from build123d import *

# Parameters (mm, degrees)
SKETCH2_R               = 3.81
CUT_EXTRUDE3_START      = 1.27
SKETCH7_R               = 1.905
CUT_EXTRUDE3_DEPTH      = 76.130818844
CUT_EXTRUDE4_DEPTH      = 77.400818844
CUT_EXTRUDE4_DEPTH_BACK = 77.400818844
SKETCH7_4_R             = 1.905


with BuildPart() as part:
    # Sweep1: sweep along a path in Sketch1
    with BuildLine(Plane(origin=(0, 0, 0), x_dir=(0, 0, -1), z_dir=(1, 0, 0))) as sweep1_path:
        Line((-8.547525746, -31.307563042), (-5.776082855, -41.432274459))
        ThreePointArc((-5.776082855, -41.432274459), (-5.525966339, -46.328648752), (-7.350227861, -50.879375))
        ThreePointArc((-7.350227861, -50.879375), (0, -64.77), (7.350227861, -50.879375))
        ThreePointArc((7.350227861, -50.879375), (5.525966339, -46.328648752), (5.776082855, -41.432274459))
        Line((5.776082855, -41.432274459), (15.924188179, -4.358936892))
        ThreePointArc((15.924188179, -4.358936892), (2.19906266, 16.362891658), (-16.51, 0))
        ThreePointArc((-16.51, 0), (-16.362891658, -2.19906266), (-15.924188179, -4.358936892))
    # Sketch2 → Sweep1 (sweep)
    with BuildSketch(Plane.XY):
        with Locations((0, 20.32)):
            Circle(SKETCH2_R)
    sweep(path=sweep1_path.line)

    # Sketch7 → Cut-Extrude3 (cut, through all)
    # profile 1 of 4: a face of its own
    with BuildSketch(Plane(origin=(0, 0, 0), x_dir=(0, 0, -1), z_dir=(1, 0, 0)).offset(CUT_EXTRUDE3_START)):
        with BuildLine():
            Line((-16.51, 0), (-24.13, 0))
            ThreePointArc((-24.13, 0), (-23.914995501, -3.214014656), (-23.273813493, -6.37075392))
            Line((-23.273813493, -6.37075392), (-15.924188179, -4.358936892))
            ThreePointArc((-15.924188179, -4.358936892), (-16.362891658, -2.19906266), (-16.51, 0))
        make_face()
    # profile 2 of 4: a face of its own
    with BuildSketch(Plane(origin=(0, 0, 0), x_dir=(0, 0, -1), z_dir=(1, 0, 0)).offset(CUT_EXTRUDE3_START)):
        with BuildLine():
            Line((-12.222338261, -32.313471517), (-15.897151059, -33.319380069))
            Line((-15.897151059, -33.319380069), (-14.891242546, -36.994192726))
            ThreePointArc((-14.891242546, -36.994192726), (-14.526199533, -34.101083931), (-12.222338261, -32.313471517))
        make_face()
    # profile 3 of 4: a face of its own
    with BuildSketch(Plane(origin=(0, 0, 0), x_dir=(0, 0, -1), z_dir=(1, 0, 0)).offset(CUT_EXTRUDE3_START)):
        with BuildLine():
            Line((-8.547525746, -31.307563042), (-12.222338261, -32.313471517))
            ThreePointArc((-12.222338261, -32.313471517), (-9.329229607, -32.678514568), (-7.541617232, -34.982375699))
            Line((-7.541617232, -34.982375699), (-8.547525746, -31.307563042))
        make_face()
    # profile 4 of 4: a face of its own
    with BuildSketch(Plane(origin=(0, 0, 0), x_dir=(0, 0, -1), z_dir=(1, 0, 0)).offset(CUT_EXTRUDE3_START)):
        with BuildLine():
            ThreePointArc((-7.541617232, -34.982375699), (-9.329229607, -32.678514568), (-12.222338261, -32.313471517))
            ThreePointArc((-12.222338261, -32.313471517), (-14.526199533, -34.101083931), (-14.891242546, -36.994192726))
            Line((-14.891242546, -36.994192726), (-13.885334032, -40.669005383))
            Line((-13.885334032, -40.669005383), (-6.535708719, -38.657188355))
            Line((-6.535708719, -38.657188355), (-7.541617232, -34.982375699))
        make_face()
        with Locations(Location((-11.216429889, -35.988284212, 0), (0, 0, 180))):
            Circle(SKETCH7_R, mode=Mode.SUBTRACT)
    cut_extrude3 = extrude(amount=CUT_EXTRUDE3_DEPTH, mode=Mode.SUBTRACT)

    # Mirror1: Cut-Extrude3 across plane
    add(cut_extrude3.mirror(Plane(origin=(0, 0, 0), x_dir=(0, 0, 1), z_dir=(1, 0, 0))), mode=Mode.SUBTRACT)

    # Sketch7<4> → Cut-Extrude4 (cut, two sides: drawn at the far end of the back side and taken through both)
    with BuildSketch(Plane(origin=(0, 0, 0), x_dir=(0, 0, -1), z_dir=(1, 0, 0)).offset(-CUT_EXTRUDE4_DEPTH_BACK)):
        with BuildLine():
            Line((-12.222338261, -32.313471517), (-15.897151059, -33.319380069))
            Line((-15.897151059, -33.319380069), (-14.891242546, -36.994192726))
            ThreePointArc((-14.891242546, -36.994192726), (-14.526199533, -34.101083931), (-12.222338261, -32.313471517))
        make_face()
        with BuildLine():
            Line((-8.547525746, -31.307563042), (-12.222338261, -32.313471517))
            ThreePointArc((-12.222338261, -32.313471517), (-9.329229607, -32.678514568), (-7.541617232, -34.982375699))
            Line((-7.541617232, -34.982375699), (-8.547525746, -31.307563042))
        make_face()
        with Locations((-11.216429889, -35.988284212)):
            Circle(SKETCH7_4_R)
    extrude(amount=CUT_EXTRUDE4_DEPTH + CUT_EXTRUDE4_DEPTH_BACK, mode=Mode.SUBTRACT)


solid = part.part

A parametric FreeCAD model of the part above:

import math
import FreeCAD as App
import Part
import Sketcher
from FreeCAD import Vector
Q = App.Units.Quantity

doc = App.newDocument("Part")
body = doc.addObject("PartDesign::Body", "Body")

# Sketch on XY plane
sketch1 = body.newObject("Sketcher::SketchObject", "Sketch")
sketch1.AttachmentSupport = (doc.getObject("XY_Plane"), [""])
sketch1.MapMode = "FlatFace"
sketch1.addGeometry(Part.Circle(Vector(0, 20.3, 0), Vector(0, 0, 1), 3.8), False)
sketch1.addConstraint(Sketcher.Constraint("PointOnObject", 0, 3, -2))
sketch1.addConstraint(Sketcher.Constraint("Diameter", 0, Q("0.3 in")))
sketch1.addConstraint(Sketcher.Constraint("DistanceY", -1, 1, 0, 3, Q("0.8 in")))

# Sketch on YZ plane
sketch2 = body.newObject("Sketcher::SketchObject", "Sketch001")
sketch2.AttachmentSupport = (doc.getObject("YZ_Plane"), [""])
sketch2.MapMode = "FlatFace"
sketch2.addGeometry(Part.LineSegment(Vector(-31.3, 8.5, 0), Vector(-41.4, 5.8, 0)), False)
sketch2.addGeometry(Part.ArcOfCircle(Part.Circle(Vector(-44.5, 16.8, 0), Vector(0, 0, 1), 11.4), math.radians(-124), math.radians(-75)), False)
sketch2.addGeometry(Part.ArcOfCircle(Part.Circle(Vector(-55.9, 0, 0), Vector(0, 0, 1), 8.9), math.radians(56), math.radians(304)), False)
sketch2.addGeometry(Part.ArcOfCircle(Part.Circle(Vector(-44.5, -16.8, 0), Vector(0, 0, 1), 11.4), math.radians(75), math.radians(124)), False)
sketch2.addGeometry(Part.LineSegment(Vector(-41.4, -5.8, 0), Vector(-4.4, -15.9, 0)), False)
sketch2.addGeometry(Part.ArcOfCircle(Part.Circle(Vector(0, 0, 0), Vector(0, 0, 1), 16.5), math.radians(-105), math.radians(90)), False)
sketch2.addGeometry(Part.ArcOfCircle(Part.Circle(Vector(0, 0, 0), Vector(0, 0, 1), 16.5), math.radians(90), math.radians(105.31)), False)
sketch2.addConstraint(Sketcher.Constraint("Tangent", 0, 2, 1, 2))
sketch2.addConstraint(Sketcher.Constraint("Tangent", 1, 1, 2, 1))
sketch2.addConstraint(Sketcher.Constraint("Tangent", 2, 2, 3, 2))
sketch2.addConstraint(Sketcher.Constraint("Tangent", 3, 1, 4, 1))
sketch2.addConstraint(Sketcher.Constraint("Tangent", 4, 2, 5, 1))
sketch2.addConstraint(Sketcher.Constraint("Tangent", 5, 2, 6, 1))
sketch2.addConstraint(Sketcher.Constraint("Coincident", 5, 3, -1, 1))
sketch2.addConstraint(Sketcher.Constraint("Equal", 1, 3))
sketch2.addConstraint(Sketcher.Constraint("Equal", 5, 6))
sketch2.addConstraint(Sketcher.Constraint("Symmetric", 1, 3, 3, 3, -1))
sketch2.addConstraint(Sketcher.Constraint("PointOnObject", 5, 2, -2))
sketch2.addConstraint(Sketcher.Constraint("Vertical", 0, 2, 3, 1))
sketch2.addConstraint(Sketcher.Constraint("Vertical", 4, 2, 6, 2))
sketch2.addConstraint(Sketcher.Constraint("Radius", 1, Q("0.45 in")))
sketch2.addConstraint(Sketcher.Constraint("Radius", 2, Q("0.35 in")))
sketch2.addConstraint(Sketcher.Constraint("Radius", 5, Q("0.65 in")))
sketch2.addConstraint(Sketcher.Constraint("DistanceX", 2, 3, -1, 1, Q("2.2 in")))
sketch2.addConstraint(Sketcher.Constraint("DistanceX", 1, 3, -1, 1, Q("1.75 in")))
sketch2.addConstraint(Sketcher.Constraint("DistanceX", 0, 2, 0, 1, Q("10.124711 mm")))
doc.recompute()

additivepipe = body.newObject("PartDesign::AdditivePipe", "AdditivePipe")
additivepipe.Profile = sketch1
additivepipe.Spine = (sketch2, ["Edge1", "Edge2", "Edge3", "Edge4", "Edge5", "Edge6", "Edge7"])

# Sketch on YZ plane
sketch3 = body.newObject("Sketcher::SketchObject", "Sketch002")
sketch3.AttachmentSupport = (doc.getObject("YZ_Plane"), [""])
sketch3.MapMode = "FlatFace"
sketch3.AttachmentOffset = App.Placement(Vector(0, 0, 0.05 * 25.4), App.Rotation())
sketch3.addGeometry(Part.LineSegment(Vector(0, 16.5, 0), Vector(0, 24.1, 0)), False)
sketch3.addGeometry(Part.ArcOfCircle(Part.Circle(Vector(0, 0, 0), Vector(0, 0, 1), 24.1), math.radians(90), math.radians(105.31)), False)
sketch3.addGeometry(Part.LineSegment(Vector(-6.4, 23.3, 0), Vector(-4.4, 15.9, 0)), False)
sketch3.addGeometry(Part.ArcOfCircle(Part.Circle(Vector(0, 0, 0), Vector(0, 0, 1), 16.5), math.radians(90), math.radians(105.31)), False)
sketch3.addGeometry(Part.LineSegment(Vector(-32.3, 12.2, 0), Vector(-33.3, 15.9, 0)), False)
sketch3.addGeometry(Part.LineSegment(Vector(-33.3, 15.9, 0), Vector(-37, 14.9, 0)), False)
sketch3.addGeometry(Part.LineSegment(Vector(-37, 14.9, 0), Vector(-40.7, 13.9, 0)), False)
sketch3.addGeometry(Part.LineSegment(Vector(-40.7, 13.9, 0), Vector(-38.7, 6.5, 0)), False)
sketch3.addGeometry(Part.LineSegment(Vector(-38.7, 6.5, 0), Vector(-35, 7.5, 0)), False)
sketch3.addGeometry(Part.LineSegment(Vector(-35, 7.5, 0), Vector(-31.3, 8.5, 0)), False)
sketch3.addGeometry(Part.LineSegment(Vector(-31.3, 8.5, 0), Vector(-32.3, 12.2, 0)), False)
sketch3.addGeometry(Part.Circle(Vector(-36, 11.2, 0), Vector(0, 0, 1), 1.9), False)
sketch3.addConstraint(Sketcher.Constraint("Coincident", 0, 2, 1, 1))
sketch3.addConstraint(Sketcher.Constraint("Coincident", 1, 2, 2, 1))
sketch3.addConstraint(Sketcher.Constraint("Coincident", 2, 2, 3, 2))
sketch3.addConstraint(Sketcher.Constraint("Coincident", 3, 1, 0, 1))
sketch3.addConstraint(Sketcher.Constraint("Coincident", 4, 2, 5, 1))
sketch3.addConstraint(Sketcher.Constraint("Coincident", 5, 2, 6, 1))
sketch3.addConstraint(Sketcher.Constraint("Coincident", 6, 2, 7, 1))
sketch3.addConstraint(Sketcher.Constraint("Coincident", 7, 2, 8, 1))
sketch3.addConstraint(Sketcher.Constraint("Coincident", 8, 2, 9, 1))
sketch3.addConstraint(Sketcher.Constraint("Coincident", 9, 2, 10, 1))
sketch3.addConstraint(Sketcher.Constraint("Coincident", 10, 2, 4, 1))
sketch3.addConstraint(Sketcher.Constraint("Vertical", 0))
sketch3.addConstraint(Sketcher.Constraint("Coincident", 1, 3, -1, 1))
sketch3.addConstraint(Sketcher.Constraint("Coincident", 3, 3, -1, 1))
sketch3.addConstraint(Sketcher.Constraint("PointOnObject", 0, 2, -2))
sketch3.addConstraint(Sketcher.Constraint("Parallel", 2, 4))
sketch3.addConstraint(Sketcher.Constraint("Perpendicular", 4, 5))
sketch3.addConstraint(Sketcher.Constraint("Parallel", 5, 6))
sketch3.addConstraint(Sketcher.Constraint("Perpendicular", 6, 7))
sketch3.addConstraint(Sketcher.Constraint("Perpendicular", 7, 8))
sketch3.addConstraint(Sketcher.Constraint("Parallel", 8, 9))
sketch3.addConstraint(Sketcher.Constraint("Perpendicular", 9, 10))
sketch3.addConstraint(Sketcher.Constraint("Equal", 4, 5))
sketch3.addConstraint(Sketcher.Constraint("Equal", 5, 6))
sketch3.addConstraint(Sketcher.Constraint("Equal", 2, 7))
sketch3.addConstraint(Sketcher.Constraint("Equal", 6, 8))
sketch3.addConstraint(Sketcher.Constraint("Equal", 9, 10))
sketch3.addConstraint(Sketcher.Constraint("Diameter", 11, Q("0.15 in")))
sketch3.addConstraint(Sketcher.Constraint("Radius", 1, Q("0.95 in")))
sketch3.addConstraint(Sketcher.Constraint("Radius", 3, Q("0.65 in")))
sketch3.addConstraint(Sketcher.Constraint("DistanceY", 11, 3, 1, 2, Q("0.4747001 in")))
sketch3.addConstraint(Sketcher.Constraint("DistanceY", -1, 1, 11, 3, Q("11.21643 mm")))
sketch3.addConstraint(Sketcher.Constraint("DistanceY", -1, 1, 2, 2, Q("15.924188 mm")))
sketch3.addConstraint(Sketcher.Constraint("DistanceX", 4, 2, -1, 1, Q("33.31938 mm")))
sketch3.addConstraint(Sketcher.Constraint("DistanceY", -1, 1, 4, 2, Q("15.897151 mm")))
sketch3.addConstraint(Sketcher.Constraint("DistanceX", 11, 3, 1, 2, Q("29.61753 mm")))
pocket1 = body.newObject("PartDesign::Pocket", "Pocket")
pocket1.Profile = sketch3
pocket1.Length = 76.130819
pocket1.Reversed = True
doc.recompute()

mirrored = body.newObject("PartDesign::Mirrored", "Mirrored")
mirrored.Originals = [pocket1]
mirrored.MirrorPlane = (doc.getObject("YZ_Plane"), [""])
body.Tip = mirrored

# Sketch on YZ plane
sketch4 = body.newObject("Sketcher::SketchObject", "Sketch003")
sketch4.AttachmentSupport = (doc.getObject("YZ_Plane"), [""])
sketch4.MapMode = "FlatFace"
sketch4.addGeometry(Part.LineSegment(Vector(-32.3, 12.2, 0), Vector(-33.3, 15.9, 0)), False)
sketch4.addGeometry(Part.LineSegment(Vector(-33.3, 15.9, 0), Vector(-37, 14.9, 0)), False)
sketch4.addGeometry(Part.ArcOfCircle(Part.Circle(Vector(-36, 11.2, 0), Vector(0, 0, 1), 3.8), math.radians(15), math.radians(105)), False)
sketch4.addGeometry(Part.LineSegment(Vector(-31.3, 8.5, 0), Vector(-32.3, 12.2, 0)), False)
sketch4.addGeometry(Part.ArcOfCircle(Part.Circle(Vector(-36, 11.2, 0), Vector(0, 0, 1), 3.8), math.radians(-75), math.radians(15)), False)
sketch4.addGeometry(Part.LineSegment(Vector(-35, 7.5, 0), Vector(-31.3, 8.5, 0)), False)
sketch4.addGeometry(Part.Circle(Vector(-36, 11.2, 0), Vector(0, 0, 1), 1.9), False)
sketch4.addConstraint(Sketcher.Constraint("Coincident", 0, 2, 1, 1))
sketch4.addConstraint(Sketcher.Constraint("Tangent", 1, 2, 2, 2))
sketch4.addConstraint(Sketcher.Constraint("Tangent", 2, 1, 0, 1))
sketch4.addConstraint(Sketcher.Constraint("Tangent", 3, 2, 4, 2))
sketch4.addConstraint(Sketcher.Constraint("Tangent", 4, 1, 5, 1))
sketch4.addConstraint(Sketcher.Constraint("Coincident", 5, 2, 3, 1))
sketch4.addConstraint(Sketcher.Constraint("Coincident", 4, 3, 2, 3))
sketch4.addConstraint(Sketcher.Constraint("Coincident", 6, 3, 2, 3))
sketch4.addConstraint(Sketcher.Constraint("Coincident", 3, 2, 2, 1))
sketch4.addConstraint(Sketcher.Constraint("Perpendicular", 0, 1))
sketch4.addConstraint(Sketcher.Constraint("Perpendicular", 3, 5))
sketch4.addConstraint(Sketcher.Constraint("Diameter", 6, Q("0.15 in")))
sketch4.addConstraint(Sketcher.Constraint("Radius", 2, Q("0.15 in")))
sketch4.addConstraint(Sketcher.Constraint("DistanceY", -1, 1, 2, 3, Q("11.21643 mm")))
sketch4.addConstraint(Sketcher.Constraint("DistanceX", 0, 2, -1, 1, Q("33.31938 mm")))
sketch4.addConstraint(Sketcher.Constraint("DistanceY", -1, 1, 0, 2, Q("15.897151 mm")))
pocket2 = body.newObject("PartDesign::Pocket", "Pocket001")
pocket2.Profile = sketch4
pocket2.Type = "ThroughAll"
pocket2.Midplane = True

doc.recompute()
